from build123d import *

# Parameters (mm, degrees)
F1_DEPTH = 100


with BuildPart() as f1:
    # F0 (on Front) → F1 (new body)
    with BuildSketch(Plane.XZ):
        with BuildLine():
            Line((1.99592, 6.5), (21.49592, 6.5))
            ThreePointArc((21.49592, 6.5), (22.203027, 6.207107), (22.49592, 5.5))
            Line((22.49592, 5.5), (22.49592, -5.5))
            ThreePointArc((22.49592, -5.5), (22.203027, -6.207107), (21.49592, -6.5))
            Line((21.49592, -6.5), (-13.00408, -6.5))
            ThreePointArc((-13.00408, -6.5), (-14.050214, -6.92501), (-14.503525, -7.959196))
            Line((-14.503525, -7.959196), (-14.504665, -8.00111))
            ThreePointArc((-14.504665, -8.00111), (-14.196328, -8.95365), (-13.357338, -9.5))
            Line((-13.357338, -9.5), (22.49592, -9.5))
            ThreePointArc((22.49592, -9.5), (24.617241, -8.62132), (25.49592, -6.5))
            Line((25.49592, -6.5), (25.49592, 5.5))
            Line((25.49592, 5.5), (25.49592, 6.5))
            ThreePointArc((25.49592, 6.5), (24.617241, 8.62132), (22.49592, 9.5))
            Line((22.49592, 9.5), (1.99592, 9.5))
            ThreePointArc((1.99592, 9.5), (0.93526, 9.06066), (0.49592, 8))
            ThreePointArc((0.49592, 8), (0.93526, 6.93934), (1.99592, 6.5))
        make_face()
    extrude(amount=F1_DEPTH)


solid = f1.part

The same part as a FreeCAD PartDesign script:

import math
import FreeCAD as App
import Part
import Sketcher

V = App.Vector
Q = App.Units.Quantity

doc = App.newDocument("Part")
params = doc.addObject("Spreadsheet::Sheet", "Params")
for row, (alias, value) in enumerate([
    ("sketch1_radius", "0.999999 mm"),
    ("sketch1_radius2", "2.999999 mm"),
    ("sketch1_height", "11 mm"),
    ("sketch1_width", "19.5 mm"),
    ("sketch1_width2", "34.5 mm"),
    ("pad1_length", "100 mm"),
], start=1):
    params.set(f"A{row}", alias)
    params.set(f"B{row}", "=" + value)
    params.setAlias(f"B{row}", alias)

body = doc.addObject("PartDesign::Body", "Body")

sketch1 = body.newObject("Sketcher::SketchObject", "Sketch")
sketch1.AttachmentSupport = (doc.getObject("XZ_Plane"), [""])
sketch1.MapMode = "FlatFace"
sketch1.addGeometry(Part.LineSegment(V(1.996, 6.5, 0), V(21.496, 6.5, 0)), False)
sketch1.addGeometry(Part.ArcOfCircle(Part.Circle(V(21.496, 5.5, 0), V(0, 0, 1), 1), math.radians(0), math.radians(90)), False)
sketch1.addGeometry(Part.LineSegment(V(22.496, 5.5, 0), V(22.496, -5.5, 0)), False)
sketch1.addGeometry(Part.ArcOfCircle(Part.Circle(V(21.496, -5.5, 0), V(0, 0, 1), 1), math.radians(-90), math.radians(0)), False)
sketch1.addGeometry(Part.LineSegment(V(21.496, -6.5, 0), V(-13.004, -6.5, 0)), False)
sketch1.addGeometry(Part.ArcOfCircle(Part.Circle(V(-13.004, -8, 0), V(0, 0, 1), 1.5), math.radians(90), math.radians(178)), False)
sketch1.addGeometry(Part.LineSegment(V(-14.504, -7.959, 0), V(-14.505, -8.001, 0)), False)
sketch1.addGeometry(Part.ArcOfCircle(Part.Circle(V(-13.005, -8.042, 0), V(0, 0, 1), 1.5), math.radians(178), math.radians(256)), False)
sketch1.addGeometry(Part.LineSegment(V(-13.357, -9.5, 0), V(22.496, -9.5, 0)), False)
sketch1.addGeometry(Part.ArcOfCircle(Part.Circle(V(22.496, -6.5, 0), V(0, 0, 1), 3), math.radians(-90), math.radians(0)), False)
sketch1.addGeometry(Part.LineSegment(V(25.496, -6.5, 0), V(25.496, 6.5, 0)), False)
sketch1.addGeometry(Part.ArcOfCircle(Part.Circle(V(22.496, 6.5, 0), V(0, 0, 1), 3), math.radians(0), math.radians(90)), False)
sketch1.addGeometry(Part.LineSegment(V(22.496, 9.5, 0), V(1.996, 9.5, 0)), False)
sketch1.addGeometry(Part.ArcOfCircle(Part.Circle(V(1.996, 8, 0), V(0, 0, 1), 1.5), math.radians(90), math.radians(180)), False)
sketch1.addGeometry(Part.ArcOfCircle(Part.Circle(V(1.996, 8, 0), V(0, 0, 1), 1.5), math.radians(-180), math.radians(-90)), False)
sketch1.addConstraint(Sketcher.Constraint("Tangent", 0, 2, 1, 2))
sketch1.addConstraint(Sketcher.Constraint("Tangent", 1, 1, 2, 1))
sketch1.addConstraint(Sketcher.Constraint("Tangent", 2, 2, 3, 2))
sketch1.addConstraint(Sketcher.Constraint("Tangent", 3, 1, 4, 1))
sketch1.addConstraint(Sketcher.Constraint("Tangent", 4, 2, 5, 1))
sketch1.addConstraint(Sketcher.Constraint("Coincident", 5, 2, 6, 1))
sketch1.addConstraint(Sketcher.Constraint("Coincident", 6, 2, 7, 1))
sketch1.addConstraint(Sketcher.Constraint("Coincident", 7, 2, 8, 1))
sketch1.addConstraint(Sketcher.Constraint("Tangent", 8, 2, 9, 1))
sketch1.addConstraint(Sketcher.Constraint("Tangent", 9, 2, 10, 1))
sketch1.addConstraint(Sketcher.Constraint("Tangent", 10, 2, 11, 1))
sketch1.addConstraint(Sketcher.Constraint("Tangent", 11, 2, 12, 1))
sketch1.addConstraint(Sketcher.Constraint("Tangent", 12, 2, 13, 1))
sketch1.addConstraint(Sketcher.Constraint("Tangent", 13, 2, 14, 1))
sketch1.addConstraint(Sketcher.Constraint("Tangent", 14, 2, 0, 1))
sketch1.addConstraint(Sketcher.Constraint("Horizontal", 0))
sketch1.addConstraint(Sketcher.Constraint("Vertical", 2))
sketch1.addConstraint(Sketcher.Constraint("Horizontal", 4))
sketch1.addConstraint(Sketcher.Constraint("Horizontal", 8))
sketch1.addConstraint(Sketcher.Constraint("Vertical", 10))
sketch1.addConstraint(Sketcher.Constraint("Horizontal", 12))
sketch1.addConstraint(Sketcher.Constraint("Equal", 1, 3))
sketch1.addConstraint(Sketcher.Constraint("Equal", 5, 7))
sketch1.addConstraint(Sketcher.Constraint("Equal", 9, 11))
sketch1.addConstraint(Sketcher.Constraint("Equal", 7, 13))
sketch1.addConstraint(Sketcher.Constraint("Equal", 13, 14))
sketch1.addConstraint(Sketcher.Constraint("Horizontal", 11, 3, 0, 2))
sketch1.addConstraint(Sketcher.Constraint("Horizontal", 9, 3, 3, 1))
sketch1.addConstraint(Sketcher.Constraint("Horizontal", 14, 3, 13, 2))
sketch1.addConstraint(Sketcher.Constraint("Vertical", 11, 3, 1, 1))
sketch1.addConstraint(Sketcher.Constraint("Radius", 1, Q("0.999999 mm")))
sketch1.addConstraint(Sketcher.Constraint("Radius", 9, Q("2.999999 mm")))
sketch1.addConstraint(Sketcher.Constraint("DistanceY", 2, 2, 2, 1, Q("11 mm")))
sketch1.addConstraint(Sketcher.Constraint("DistanceX", 0, 1, 0, 2, Q("19.5 mm")))
sketch1.addConstraint(Sketcher.Constraint("DistanceX", 4, 2, 4, 1, Q("34.5 mm")))
sketch1.addConstraint(Sketcher.Constraint("DistanceY", 5, 3, -1, 1, Q("8 mm")))
sketch1.addConstraint(Sketcher.Constraint("DistanceX", 8, 1, 8, 2, Q("35.853258 mm")))
sketch1.addConstraint(Sketcher.Constraint("Distance", 6, Q("0.04193 mm")))
sketch1.addConstraint(Sketcher.Constraint("DistanceX", -1, 1, 1, 3, Q("21.495921 mm")))
sketch1.addConstraint(Sketcher.Constraint("DistanceX", 7, 3, -1, 1, Q("13.005219 mm")))
sketch1.addConstraint(Sketcher.Constraint("DistanceY", 6, 2, -1, 1, Q("8.00111 mm")))
sketch1.setExpression("Constraints[30]", "Params.sketch1_radius")
sketch1.setExpression("Constraints[31]", "Params.sketch1_radius2")
sketch1.setExpression("Constraints[32]", "Params.sketch1_height")
sketch1.setExpression("Constraints[33]", "Params.sketch1_width")
sketch1.setExpression("Constraints[34]", "Params.sketch1_width2")
pad1 = body.newObject("PartDesign::Pad", "Pad")
pad1.Profile = sketch1
pad1.setExpression("Length", "Params.pad1_length")

doc.recompute()
